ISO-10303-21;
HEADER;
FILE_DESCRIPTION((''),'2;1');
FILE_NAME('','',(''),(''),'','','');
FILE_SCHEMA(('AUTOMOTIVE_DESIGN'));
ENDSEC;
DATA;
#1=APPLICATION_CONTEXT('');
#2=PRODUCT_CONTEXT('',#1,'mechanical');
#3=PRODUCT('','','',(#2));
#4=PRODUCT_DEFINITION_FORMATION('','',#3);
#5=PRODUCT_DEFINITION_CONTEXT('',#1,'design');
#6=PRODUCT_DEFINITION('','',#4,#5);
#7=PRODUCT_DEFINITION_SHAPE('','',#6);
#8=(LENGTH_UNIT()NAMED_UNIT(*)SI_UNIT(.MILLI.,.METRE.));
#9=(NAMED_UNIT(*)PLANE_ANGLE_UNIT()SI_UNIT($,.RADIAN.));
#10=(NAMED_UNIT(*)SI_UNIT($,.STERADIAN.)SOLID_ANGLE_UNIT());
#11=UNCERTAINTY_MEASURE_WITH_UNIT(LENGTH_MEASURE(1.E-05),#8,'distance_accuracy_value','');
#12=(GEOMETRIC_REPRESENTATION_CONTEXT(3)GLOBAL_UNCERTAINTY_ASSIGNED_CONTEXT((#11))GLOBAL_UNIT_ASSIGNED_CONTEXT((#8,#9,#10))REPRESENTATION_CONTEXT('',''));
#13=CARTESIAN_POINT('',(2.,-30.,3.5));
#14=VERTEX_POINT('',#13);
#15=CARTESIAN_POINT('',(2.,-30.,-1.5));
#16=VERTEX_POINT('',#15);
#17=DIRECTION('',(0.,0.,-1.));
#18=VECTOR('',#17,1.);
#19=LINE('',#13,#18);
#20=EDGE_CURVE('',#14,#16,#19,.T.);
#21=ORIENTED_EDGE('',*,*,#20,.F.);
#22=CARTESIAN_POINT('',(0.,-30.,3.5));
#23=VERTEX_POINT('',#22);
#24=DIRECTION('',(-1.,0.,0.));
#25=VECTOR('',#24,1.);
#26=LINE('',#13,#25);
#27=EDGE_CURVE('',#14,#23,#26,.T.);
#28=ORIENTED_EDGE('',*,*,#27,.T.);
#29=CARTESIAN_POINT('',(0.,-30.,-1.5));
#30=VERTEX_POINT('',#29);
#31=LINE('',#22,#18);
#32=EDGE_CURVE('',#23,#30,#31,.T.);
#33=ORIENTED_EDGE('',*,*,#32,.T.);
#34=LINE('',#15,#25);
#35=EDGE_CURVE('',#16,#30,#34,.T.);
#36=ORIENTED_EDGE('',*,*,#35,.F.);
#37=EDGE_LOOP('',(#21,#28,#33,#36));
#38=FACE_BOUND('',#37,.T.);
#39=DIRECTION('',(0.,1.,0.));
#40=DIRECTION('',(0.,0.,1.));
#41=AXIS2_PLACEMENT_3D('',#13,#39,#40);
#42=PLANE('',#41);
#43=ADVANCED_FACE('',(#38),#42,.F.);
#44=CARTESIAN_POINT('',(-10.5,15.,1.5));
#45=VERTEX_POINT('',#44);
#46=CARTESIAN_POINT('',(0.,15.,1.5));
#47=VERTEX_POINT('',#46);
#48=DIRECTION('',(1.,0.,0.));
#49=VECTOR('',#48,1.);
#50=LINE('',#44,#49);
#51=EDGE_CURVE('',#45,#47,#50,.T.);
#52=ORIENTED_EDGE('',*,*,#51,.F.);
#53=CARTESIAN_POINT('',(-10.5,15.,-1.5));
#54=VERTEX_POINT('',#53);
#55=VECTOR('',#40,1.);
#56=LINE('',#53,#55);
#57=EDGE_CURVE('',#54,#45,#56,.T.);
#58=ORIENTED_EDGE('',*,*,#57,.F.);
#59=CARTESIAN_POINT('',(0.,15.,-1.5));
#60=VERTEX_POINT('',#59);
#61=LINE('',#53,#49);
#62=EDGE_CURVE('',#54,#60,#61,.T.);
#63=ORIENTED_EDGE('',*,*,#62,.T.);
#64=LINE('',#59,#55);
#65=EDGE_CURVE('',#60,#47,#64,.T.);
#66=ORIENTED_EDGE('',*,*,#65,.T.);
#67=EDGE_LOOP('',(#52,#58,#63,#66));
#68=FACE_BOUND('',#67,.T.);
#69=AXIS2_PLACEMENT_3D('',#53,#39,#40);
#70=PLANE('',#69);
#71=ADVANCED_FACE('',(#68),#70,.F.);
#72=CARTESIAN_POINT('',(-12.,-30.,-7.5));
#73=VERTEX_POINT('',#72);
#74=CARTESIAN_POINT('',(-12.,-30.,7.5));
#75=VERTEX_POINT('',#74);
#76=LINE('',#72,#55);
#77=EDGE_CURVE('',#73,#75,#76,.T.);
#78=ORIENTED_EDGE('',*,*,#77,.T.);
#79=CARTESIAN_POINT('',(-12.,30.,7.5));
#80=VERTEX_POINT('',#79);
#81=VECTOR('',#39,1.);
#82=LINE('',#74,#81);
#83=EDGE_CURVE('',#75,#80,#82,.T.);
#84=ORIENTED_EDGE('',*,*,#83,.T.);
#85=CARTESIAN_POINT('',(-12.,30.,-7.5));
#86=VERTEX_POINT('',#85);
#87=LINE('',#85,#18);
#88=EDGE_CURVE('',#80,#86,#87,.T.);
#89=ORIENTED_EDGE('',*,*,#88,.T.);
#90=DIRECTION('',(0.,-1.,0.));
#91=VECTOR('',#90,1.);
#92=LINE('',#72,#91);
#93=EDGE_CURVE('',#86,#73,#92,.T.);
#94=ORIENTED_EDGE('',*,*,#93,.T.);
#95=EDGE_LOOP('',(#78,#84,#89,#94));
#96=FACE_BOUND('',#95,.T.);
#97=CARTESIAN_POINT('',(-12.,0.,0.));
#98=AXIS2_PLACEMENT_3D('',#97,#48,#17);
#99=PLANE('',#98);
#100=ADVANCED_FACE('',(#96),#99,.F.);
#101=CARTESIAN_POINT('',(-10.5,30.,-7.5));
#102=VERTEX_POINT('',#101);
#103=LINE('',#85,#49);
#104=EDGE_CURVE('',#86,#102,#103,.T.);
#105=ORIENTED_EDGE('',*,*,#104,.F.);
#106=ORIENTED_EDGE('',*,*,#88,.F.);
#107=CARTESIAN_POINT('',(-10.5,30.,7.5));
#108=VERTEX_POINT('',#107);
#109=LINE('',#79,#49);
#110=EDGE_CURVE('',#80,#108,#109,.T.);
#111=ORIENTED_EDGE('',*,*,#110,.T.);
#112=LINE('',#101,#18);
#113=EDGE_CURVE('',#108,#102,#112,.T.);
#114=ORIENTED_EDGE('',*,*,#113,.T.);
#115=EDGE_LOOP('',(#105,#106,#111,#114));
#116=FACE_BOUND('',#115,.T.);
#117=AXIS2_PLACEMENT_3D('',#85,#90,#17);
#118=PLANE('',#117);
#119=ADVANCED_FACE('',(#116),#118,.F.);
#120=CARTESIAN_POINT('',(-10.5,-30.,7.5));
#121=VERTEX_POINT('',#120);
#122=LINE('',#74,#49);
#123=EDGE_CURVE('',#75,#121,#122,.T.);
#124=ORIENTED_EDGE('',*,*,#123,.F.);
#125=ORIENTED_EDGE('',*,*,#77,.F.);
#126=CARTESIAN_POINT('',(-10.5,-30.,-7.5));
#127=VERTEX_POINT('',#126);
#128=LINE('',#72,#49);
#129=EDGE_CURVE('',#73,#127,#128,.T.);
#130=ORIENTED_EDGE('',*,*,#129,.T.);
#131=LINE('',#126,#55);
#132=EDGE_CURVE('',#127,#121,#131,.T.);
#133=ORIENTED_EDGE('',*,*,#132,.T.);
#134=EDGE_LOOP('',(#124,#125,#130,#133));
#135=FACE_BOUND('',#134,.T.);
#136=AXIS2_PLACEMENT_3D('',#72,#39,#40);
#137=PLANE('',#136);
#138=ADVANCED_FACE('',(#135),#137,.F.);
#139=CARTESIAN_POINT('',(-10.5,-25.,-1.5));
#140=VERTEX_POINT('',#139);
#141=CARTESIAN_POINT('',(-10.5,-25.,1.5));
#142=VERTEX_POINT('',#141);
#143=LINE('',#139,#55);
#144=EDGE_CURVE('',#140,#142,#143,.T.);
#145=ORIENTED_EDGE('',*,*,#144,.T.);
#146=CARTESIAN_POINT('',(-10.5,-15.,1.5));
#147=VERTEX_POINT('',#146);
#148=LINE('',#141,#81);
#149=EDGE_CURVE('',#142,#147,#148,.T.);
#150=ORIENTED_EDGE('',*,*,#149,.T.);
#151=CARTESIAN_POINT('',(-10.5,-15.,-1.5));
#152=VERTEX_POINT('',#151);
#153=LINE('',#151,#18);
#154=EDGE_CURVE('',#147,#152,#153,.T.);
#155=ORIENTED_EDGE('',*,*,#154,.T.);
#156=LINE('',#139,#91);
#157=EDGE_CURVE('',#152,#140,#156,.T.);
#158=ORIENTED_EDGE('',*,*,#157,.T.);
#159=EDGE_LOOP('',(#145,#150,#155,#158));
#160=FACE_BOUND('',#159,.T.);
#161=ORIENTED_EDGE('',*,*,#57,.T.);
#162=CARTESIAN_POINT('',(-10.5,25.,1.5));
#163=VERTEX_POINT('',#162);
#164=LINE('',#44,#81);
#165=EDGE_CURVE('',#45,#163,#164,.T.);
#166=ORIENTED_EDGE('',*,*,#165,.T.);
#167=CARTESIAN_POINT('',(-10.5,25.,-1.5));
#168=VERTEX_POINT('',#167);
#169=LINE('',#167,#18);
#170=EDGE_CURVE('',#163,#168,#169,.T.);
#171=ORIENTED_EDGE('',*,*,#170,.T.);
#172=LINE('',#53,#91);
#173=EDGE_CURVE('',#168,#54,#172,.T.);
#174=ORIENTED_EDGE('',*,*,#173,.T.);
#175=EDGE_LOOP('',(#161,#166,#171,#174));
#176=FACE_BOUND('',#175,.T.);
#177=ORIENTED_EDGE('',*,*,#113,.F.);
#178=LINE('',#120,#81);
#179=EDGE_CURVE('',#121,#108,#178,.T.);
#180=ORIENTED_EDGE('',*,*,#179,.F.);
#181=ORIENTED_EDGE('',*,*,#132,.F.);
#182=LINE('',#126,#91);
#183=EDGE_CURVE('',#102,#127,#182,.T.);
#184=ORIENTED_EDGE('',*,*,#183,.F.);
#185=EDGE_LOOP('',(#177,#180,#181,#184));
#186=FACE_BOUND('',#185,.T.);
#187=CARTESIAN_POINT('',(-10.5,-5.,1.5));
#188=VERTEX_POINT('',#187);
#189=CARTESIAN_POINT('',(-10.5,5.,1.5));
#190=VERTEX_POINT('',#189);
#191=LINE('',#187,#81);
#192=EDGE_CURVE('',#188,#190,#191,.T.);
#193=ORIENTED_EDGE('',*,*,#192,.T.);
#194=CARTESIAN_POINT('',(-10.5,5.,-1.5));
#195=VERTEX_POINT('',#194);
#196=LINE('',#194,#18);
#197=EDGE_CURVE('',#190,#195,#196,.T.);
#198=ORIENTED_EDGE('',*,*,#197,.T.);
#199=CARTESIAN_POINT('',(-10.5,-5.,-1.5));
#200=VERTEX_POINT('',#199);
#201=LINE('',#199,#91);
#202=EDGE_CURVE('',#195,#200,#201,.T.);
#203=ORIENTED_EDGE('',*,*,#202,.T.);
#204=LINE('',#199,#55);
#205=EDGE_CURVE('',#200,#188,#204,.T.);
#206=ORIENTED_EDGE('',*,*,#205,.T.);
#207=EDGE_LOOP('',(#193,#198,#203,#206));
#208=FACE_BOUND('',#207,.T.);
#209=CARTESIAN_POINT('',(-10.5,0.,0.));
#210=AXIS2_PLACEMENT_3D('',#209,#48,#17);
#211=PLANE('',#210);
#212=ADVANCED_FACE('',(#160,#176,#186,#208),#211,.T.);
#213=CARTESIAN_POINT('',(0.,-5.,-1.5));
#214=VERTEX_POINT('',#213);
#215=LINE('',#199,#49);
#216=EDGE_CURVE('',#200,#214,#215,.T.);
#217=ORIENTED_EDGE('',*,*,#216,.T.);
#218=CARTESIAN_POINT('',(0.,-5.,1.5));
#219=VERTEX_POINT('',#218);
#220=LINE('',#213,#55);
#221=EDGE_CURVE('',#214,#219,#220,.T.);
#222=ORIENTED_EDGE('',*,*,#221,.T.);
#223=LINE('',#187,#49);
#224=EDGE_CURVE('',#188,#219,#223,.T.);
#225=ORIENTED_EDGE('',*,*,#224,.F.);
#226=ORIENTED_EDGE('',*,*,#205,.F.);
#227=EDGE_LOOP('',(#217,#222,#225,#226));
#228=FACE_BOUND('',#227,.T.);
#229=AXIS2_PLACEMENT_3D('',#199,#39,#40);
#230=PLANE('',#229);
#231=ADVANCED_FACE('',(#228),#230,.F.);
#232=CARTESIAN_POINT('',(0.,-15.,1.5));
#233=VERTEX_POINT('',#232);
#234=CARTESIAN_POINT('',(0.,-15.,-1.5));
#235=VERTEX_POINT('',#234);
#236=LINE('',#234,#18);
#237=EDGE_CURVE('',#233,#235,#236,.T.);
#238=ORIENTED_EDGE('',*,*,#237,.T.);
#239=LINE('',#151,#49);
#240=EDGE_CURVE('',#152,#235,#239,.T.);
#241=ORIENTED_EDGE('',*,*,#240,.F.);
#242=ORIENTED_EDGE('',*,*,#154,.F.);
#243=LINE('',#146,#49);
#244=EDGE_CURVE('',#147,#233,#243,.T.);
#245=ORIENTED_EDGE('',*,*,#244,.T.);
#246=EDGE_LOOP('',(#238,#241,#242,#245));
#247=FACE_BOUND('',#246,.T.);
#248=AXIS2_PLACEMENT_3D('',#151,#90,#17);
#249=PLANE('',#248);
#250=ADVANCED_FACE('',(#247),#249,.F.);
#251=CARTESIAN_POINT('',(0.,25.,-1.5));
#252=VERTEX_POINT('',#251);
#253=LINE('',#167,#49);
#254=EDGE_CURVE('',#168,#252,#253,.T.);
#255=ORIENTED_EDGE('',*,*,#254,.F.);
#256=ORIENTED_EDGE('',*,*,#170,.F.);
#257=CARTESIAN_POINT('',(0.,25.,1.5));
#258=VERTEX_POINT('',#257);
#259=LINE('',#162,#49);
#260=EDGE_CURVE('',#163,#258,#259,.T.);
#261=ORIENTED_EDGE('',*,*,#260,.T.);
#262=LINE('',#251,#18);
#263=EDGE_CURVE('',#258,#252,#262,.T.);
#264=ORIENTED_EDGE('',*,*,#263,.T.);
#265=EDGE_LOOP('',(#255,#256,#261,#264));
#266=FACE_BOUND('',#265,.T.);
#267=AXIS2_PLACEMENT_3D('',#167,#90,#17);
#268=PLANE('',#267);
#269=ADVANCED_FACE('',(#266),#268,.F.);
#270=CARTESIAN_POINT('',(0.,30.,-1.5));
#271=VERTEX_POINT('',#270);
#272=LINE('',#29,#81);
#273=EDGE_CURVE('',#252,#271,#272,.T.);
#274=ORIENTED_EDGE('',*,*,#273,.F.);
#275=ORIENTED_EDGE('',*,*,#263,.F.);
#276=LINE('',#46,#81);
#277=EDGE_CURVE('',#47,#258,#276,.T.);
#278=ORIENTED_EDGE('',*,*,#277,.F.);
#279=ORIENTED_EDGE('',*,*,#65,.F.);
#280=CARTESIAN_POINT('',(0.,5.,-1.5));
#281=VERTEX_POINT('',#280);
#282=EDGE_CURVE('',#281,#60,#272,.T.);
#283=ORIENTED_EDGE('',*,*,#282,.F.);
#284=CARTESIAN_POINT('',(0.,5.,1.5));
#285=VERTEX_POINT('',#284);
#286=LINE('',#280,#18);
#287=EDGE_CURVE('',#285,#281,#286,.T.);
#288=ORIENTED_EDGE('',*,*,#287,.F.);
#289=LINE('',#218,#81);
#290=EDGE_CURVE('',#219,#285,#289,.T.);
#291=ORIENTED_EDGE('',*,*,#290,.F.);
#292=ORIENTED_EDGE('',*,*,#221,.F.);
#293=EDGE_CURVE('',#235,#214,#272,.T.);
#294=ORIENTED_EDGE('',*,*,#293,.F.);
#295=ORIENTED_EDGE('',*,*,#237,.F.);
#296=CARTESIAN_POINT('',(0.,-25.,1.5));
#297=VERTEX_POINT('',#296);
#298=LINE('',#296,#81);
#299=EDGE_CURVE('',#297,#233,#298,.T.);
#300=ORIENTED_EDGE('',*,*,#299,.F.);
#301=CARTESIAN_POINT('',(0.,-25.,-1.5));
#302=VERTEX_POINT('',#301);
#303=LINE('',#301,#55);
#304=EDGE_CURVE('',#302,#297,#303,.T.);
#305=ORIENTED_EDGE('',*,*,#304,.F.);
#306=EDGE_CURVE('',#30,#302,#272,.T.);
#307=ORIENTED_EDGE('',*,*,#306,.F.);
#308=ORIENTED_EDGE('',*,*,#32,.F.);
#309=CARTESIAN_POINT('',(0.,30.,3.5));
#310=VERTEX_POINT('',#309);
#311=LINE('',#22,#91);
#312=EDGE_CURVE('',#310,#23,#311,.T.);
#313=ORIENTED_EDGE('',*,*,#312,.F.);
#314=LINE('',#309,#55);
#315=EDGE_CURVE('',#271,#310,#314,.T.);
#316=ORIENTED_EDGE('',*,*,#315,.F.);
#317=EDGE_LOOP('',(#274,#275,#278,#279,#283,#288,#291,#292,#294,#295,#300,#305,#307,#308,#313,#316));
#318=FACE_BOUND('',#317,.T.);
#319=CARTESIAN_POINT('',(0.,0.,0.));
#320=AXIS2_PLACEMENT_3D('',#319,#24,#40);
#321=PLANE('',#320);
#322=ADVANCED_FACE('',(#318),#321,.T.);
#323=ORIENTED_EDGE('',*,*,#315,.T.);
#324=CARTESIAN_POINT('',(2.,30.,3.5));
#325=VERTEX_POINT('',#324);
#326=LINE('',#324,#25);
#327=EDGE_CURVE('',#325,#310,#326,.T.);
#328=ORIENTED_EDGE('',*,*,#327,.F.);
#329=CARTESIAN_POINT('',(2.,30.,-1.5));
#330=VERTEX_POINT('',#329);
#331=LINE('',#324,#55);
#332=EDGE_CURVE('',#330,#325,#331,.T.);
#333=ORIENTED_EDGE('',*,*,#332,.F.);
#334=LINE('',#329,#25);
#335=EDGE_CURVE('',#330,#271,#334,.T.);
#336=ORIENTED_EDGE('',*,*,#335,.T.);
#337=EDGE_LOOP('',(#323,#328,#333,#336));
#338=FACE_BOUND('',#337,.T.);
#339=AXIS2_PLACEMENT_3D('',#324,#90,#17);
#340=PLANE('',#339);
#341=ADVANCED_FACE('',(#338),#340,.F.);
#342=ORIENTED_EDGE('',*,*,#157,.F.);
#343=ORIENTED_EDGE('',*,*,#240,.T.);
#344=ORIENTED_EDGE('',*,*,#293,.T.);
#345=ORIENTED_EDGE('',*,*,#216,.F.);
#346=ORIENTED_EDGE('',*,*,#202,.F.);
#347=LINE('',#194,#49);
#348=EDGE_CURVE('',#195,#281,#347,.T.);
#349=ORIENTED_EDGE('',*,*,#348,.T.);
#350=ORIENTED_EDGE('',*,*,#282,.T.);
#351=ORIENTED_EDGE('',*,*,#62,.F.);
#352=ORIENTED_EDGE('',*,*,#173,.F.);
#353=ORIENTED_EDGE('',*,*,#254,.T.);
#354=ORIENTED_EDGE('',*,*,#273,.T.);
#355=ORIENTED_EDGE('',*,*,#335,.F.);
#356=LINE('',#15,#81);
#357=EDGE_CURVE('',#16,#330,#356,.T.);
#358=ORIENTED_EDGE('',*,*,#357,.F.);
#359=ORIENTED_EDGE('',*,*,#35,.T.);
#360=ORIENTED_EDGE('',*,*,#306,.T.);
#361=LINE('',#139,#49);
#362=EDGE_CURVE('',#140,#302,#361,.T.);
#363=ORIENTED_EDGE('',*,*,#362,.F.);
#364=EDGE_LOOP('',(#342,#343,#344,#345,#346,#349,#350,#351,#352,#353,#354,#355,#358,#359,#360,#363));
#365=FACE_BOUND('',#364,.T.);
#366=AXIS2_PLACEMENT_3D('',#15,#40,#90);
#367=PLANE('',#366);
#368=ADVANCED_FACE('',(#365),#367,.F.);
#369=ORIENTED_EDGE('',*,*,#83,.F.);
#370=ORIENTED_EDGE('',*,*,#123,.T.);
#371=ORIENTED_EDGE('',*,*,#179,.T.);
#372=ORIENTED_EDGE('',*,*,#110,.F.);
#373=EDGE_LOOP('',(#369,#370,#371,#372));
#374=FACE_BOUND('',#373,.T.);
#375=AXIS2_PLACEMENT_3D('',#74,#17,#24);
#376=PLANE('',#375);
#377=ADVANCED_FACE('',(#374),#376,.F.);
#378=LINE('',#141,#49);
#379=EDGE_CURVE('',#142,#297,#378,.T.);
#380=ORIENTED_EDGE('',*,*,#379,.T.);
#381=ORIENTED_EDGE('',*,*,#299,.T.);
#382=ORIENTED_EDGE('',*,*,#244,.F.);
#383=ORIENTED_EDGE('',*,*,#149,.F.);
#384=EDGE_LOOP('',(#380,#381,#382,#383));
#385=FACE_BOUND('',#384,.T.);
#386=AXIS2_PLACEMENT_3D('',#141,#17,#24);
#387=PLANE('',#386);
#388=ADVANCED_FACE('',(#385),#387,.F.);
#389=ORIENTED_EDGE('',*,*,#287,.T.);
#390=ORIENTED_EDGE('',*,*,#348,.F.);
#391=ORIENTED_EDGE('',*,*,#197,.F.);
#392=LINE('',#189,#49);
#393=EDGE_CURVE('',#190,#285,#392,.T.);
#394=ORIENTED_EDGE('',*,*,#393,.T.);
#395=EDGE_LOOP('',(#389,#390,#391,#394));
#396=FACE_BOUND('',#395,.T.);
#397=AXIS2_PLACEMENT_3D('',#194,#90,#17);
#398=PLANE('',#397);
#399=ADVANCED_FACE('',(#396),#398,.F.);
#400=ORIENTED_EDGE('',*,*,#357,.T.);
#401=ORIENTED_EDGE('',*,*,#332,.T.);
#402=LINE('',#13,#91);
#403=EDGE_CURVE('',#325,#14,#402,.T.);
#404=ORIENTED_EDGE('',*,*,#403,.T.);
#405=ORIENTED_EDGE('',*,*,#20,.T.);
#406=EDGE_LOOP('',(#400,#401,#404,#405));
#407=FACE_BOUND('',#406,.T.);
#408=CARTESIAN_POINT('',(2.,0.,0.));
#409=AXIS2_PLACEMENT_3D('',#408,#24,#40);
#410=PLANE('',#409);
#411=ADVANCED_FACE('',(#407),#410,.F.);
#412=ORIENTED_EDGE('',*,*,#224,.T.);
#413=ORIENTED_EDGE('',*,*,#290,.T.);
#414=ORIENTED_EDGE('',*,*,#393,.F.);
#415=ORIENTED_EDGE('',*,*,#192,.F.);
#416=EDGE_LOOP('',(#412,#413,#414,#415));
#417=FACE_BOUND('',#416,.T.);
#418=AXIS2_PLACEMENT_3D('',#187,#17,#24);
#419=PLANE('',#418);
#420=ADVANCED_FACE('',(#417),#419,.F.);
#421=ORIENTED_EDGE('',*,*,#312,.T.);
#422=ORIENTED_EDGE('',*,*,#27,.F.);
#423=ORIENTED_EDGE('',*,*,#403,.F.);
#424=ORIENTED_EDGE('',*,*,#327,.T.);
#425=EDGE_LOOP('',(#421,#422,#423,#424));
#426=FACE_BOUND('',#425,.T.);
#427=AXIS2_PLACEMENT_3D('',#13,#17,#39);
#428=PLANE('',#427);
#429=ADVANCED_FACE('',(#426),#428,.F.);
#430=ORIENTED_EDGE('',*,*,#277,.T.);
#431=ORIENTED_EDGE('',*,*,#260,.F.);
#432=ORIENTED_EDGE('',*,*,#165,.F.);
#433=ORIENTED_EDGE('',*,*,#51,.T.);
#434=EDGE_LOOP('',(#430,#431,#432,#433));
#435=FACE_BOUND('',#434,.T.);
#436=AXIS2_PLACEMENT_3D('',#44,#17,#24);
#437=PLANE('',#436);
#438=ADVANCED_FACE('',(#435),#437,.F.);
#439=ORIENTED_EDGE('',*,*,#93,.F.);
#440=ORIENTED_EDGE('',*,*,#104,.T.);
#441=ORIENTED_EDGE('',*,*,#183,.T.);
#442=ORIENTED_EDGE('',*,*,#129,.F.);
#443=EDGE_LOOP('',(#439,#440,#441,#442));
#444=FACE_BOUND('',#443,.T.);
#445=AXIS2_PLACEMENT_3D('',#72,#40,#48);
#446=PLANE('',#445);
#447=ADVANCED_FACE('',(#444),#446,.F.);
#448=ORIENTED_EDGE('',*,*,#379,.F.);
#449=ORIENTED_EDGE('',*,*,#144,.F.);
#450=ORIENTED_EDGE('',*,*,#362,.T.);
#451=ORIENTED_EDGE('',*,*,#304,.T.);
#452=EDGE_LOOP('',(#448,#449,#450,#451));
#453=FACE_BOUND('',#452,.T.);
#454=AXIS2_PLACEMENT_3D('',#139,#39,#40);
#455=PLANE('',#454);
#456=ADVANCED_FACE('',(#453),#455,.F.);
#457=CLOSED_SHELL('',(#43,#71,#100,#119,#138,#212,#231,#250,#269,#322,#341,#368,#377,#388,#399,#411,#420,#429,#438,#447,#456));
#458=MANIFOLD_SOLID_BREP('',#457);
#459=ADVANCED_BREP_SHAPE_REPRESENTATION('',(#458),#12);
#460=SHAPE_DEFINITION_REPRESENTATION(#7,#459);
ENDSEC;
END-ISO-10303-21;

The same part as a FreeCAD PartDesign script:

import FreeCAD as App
import Part
import Sketcher

V = App.Vector
Q = App.Units.Quantity


def add_polygon(sketch, points):
    """Adds a closed chain of lines whose ends are joined by coincident constraints."""
    first, n = sketch.GeometryCount, len(points)
    for a, b in zip(points, points[1:] + points[:1]):
        sketch.addGeometry(Part.LineSegment(App.Vector(*a, 0), App.Vector(*b, 0)), False)
    for i in range(n):
        sketch.addConstraint(Sketcher.Constraint("Coincident", first + i, 2, first + (i + 1) % n, 1))

doc = App.newDocument("Part")
body = doc.addObject("PartDesign::Body", "Body")

sketch1 = doc.addObject("Sketcher::SketchObject", "Sketch")
body.addObject(sketch1)
sketch1.AttachmentSupport = (doc.YZ_Plane, [""])
sketch1.MapMode = "FlatFace"
add_polygon(sketch1, [(30, 4), (-30, 4), (-30, -2), (30, -2)])
sketch1.addConstraint([
    Sketcher.Constraint("Horizontal", 0),
    Sketcher.Constraint("Vertical", 1),
    Sketcher.Constraint("Horizontal", 2),
    Sketcher.Constraint("Vertical", 3),
    Sketcher.Constraint("DistanceX", 0, 2, 0, 1, Q("60 mm")),
    Sketcher.Constraint("DistanceY", 1, 2, 1, 1, Q("5 mm")),
    Sketcher.Constraint("DistanceX", 0, 2, -1, 1, Q("30 mm")),
    Sketcher.Constraint("DistanceY", -1, 1, 0, 2, Q("3.5 mm")),
])
pad1 = doc.addObject("PartDesign::Pad", "Pad")
body.addObject(pad1)
pad1.Profile = sketch1
pad1.Length = 2

sketch2 = doc.addObject("Sketcher::SketchObject", "Sketch001")
body.addObject(sketch2)
sketch2.AttachmentSupport = (doc.YZ_Plane, [""])
sketch2.MapMode = "FlatFace"
add_polygon(sketch2, [(25, -1.5), (15, -1.5), (15, 1.5), (25, 1.5)])
add_polygon(sketch2, [(5, -1.5), (-5, -1.5), (-5, 1.5), (5, 1.5)])
add_polygon(sketch2, [(-15, -1.5), (-25, -1.5), (-25, 1.5), (-15, 1.5)])
sketch2.addConstraint([
    Sketcher.Constraint("Horizontal", 0),
    Sketcher.Constraint("Vertical", 1),
    Sketcher.Constraint("Horizontal", 2),
    Sketcher.Constraint("Vertical", 3),
    Sketcher.Constraint("Horizontal", 4),
    Sketcher.Constraint("Vertical", 5),
    Sketcher.Constraint("Horizontal", 6),
    Sketcher.Constraint("Vertical", 7),
    Sketcher.Constraint("Horizontal", 8),
    Sketcher.Constraint("Vertical", 9),
    Sketcher.Constraint("Horizontal", 10),
    Sketcher.Constraint("Vertical", 11),
    Sketcher.Constraint("Symmetric", 4, 2, 6, 2, -1, 1),
    Sketcher.Constraint("Symmetric", 2, 2, 8, 2, -1, 1),
    Sketcher.Constraint("Symmetric", 0, 2, 10, 2, -1, 1),
    Sketcher.Constraint("Horizontal", 3, 2, 4, 2),
    Sketcher.Constraint("Horizontal", 2, 2, 5, 2),
    Sketcher.Constraint("Equal", 2, 4),
    Sketcher.Constraint("DistanceX", 0, 2, 0, 1, Q("10 mm")),
    Sketcher.Constraint("DistanceY", 1, 1, 1, 2, Q("3 mm")),
    Sketcher.Constraint("DistanceX", -1, 1, 0, 2, Q("15 mm")),
])
pad2 = doc.addObject("PartDesign::Pad", "Pad001")
body.addObject(pad2)
pad2.Profile = sketch2
pad2.Length = 10.5
pad2.Reversed = True

sketch3 = doc.addObject("Sketcher::SketchObject", "Sketch002")
body.addObject(sketch3)
sketch3.AttachmentSupport = (doc.YZ_Plane, [""])
sketch3.MapMode = "FlatFace"
sketch3.AttachmentOffset = App.Placement(V(0, 0, -10.5), App.Rotation())
add_polygon(sketch3, [(30, -8), (-30, -8), (-30, 8), (30, 8)])
sketch3.addConstraint([
    Sketcher.Constraint("Horizontal", 0),
    Sketcher.Constraint("Vertical", 1),
    Sketcher.Constraint("Horizontal", 2),
    Sketcher.Constraint("Vertical", 3),
    Sketcher.Constraint("Symmetric", 0, 2, 2, 2, -1, 1),
    Sketcher.Constraint("DistanceX", 0, 2, 0, 1, Q("60 mm")),
    Sketcher.Constraint("DistanceY", 1, 1, 1, 2, Q("15 mm")),
])
pad3 = doc.addObject("PartDesign::Pad", "Pad002")
body.addObject(pad3)
pad3.Profile = sketch3
pad3.Length = 1.5
pad3.Reversed = True

doc.recompute()
